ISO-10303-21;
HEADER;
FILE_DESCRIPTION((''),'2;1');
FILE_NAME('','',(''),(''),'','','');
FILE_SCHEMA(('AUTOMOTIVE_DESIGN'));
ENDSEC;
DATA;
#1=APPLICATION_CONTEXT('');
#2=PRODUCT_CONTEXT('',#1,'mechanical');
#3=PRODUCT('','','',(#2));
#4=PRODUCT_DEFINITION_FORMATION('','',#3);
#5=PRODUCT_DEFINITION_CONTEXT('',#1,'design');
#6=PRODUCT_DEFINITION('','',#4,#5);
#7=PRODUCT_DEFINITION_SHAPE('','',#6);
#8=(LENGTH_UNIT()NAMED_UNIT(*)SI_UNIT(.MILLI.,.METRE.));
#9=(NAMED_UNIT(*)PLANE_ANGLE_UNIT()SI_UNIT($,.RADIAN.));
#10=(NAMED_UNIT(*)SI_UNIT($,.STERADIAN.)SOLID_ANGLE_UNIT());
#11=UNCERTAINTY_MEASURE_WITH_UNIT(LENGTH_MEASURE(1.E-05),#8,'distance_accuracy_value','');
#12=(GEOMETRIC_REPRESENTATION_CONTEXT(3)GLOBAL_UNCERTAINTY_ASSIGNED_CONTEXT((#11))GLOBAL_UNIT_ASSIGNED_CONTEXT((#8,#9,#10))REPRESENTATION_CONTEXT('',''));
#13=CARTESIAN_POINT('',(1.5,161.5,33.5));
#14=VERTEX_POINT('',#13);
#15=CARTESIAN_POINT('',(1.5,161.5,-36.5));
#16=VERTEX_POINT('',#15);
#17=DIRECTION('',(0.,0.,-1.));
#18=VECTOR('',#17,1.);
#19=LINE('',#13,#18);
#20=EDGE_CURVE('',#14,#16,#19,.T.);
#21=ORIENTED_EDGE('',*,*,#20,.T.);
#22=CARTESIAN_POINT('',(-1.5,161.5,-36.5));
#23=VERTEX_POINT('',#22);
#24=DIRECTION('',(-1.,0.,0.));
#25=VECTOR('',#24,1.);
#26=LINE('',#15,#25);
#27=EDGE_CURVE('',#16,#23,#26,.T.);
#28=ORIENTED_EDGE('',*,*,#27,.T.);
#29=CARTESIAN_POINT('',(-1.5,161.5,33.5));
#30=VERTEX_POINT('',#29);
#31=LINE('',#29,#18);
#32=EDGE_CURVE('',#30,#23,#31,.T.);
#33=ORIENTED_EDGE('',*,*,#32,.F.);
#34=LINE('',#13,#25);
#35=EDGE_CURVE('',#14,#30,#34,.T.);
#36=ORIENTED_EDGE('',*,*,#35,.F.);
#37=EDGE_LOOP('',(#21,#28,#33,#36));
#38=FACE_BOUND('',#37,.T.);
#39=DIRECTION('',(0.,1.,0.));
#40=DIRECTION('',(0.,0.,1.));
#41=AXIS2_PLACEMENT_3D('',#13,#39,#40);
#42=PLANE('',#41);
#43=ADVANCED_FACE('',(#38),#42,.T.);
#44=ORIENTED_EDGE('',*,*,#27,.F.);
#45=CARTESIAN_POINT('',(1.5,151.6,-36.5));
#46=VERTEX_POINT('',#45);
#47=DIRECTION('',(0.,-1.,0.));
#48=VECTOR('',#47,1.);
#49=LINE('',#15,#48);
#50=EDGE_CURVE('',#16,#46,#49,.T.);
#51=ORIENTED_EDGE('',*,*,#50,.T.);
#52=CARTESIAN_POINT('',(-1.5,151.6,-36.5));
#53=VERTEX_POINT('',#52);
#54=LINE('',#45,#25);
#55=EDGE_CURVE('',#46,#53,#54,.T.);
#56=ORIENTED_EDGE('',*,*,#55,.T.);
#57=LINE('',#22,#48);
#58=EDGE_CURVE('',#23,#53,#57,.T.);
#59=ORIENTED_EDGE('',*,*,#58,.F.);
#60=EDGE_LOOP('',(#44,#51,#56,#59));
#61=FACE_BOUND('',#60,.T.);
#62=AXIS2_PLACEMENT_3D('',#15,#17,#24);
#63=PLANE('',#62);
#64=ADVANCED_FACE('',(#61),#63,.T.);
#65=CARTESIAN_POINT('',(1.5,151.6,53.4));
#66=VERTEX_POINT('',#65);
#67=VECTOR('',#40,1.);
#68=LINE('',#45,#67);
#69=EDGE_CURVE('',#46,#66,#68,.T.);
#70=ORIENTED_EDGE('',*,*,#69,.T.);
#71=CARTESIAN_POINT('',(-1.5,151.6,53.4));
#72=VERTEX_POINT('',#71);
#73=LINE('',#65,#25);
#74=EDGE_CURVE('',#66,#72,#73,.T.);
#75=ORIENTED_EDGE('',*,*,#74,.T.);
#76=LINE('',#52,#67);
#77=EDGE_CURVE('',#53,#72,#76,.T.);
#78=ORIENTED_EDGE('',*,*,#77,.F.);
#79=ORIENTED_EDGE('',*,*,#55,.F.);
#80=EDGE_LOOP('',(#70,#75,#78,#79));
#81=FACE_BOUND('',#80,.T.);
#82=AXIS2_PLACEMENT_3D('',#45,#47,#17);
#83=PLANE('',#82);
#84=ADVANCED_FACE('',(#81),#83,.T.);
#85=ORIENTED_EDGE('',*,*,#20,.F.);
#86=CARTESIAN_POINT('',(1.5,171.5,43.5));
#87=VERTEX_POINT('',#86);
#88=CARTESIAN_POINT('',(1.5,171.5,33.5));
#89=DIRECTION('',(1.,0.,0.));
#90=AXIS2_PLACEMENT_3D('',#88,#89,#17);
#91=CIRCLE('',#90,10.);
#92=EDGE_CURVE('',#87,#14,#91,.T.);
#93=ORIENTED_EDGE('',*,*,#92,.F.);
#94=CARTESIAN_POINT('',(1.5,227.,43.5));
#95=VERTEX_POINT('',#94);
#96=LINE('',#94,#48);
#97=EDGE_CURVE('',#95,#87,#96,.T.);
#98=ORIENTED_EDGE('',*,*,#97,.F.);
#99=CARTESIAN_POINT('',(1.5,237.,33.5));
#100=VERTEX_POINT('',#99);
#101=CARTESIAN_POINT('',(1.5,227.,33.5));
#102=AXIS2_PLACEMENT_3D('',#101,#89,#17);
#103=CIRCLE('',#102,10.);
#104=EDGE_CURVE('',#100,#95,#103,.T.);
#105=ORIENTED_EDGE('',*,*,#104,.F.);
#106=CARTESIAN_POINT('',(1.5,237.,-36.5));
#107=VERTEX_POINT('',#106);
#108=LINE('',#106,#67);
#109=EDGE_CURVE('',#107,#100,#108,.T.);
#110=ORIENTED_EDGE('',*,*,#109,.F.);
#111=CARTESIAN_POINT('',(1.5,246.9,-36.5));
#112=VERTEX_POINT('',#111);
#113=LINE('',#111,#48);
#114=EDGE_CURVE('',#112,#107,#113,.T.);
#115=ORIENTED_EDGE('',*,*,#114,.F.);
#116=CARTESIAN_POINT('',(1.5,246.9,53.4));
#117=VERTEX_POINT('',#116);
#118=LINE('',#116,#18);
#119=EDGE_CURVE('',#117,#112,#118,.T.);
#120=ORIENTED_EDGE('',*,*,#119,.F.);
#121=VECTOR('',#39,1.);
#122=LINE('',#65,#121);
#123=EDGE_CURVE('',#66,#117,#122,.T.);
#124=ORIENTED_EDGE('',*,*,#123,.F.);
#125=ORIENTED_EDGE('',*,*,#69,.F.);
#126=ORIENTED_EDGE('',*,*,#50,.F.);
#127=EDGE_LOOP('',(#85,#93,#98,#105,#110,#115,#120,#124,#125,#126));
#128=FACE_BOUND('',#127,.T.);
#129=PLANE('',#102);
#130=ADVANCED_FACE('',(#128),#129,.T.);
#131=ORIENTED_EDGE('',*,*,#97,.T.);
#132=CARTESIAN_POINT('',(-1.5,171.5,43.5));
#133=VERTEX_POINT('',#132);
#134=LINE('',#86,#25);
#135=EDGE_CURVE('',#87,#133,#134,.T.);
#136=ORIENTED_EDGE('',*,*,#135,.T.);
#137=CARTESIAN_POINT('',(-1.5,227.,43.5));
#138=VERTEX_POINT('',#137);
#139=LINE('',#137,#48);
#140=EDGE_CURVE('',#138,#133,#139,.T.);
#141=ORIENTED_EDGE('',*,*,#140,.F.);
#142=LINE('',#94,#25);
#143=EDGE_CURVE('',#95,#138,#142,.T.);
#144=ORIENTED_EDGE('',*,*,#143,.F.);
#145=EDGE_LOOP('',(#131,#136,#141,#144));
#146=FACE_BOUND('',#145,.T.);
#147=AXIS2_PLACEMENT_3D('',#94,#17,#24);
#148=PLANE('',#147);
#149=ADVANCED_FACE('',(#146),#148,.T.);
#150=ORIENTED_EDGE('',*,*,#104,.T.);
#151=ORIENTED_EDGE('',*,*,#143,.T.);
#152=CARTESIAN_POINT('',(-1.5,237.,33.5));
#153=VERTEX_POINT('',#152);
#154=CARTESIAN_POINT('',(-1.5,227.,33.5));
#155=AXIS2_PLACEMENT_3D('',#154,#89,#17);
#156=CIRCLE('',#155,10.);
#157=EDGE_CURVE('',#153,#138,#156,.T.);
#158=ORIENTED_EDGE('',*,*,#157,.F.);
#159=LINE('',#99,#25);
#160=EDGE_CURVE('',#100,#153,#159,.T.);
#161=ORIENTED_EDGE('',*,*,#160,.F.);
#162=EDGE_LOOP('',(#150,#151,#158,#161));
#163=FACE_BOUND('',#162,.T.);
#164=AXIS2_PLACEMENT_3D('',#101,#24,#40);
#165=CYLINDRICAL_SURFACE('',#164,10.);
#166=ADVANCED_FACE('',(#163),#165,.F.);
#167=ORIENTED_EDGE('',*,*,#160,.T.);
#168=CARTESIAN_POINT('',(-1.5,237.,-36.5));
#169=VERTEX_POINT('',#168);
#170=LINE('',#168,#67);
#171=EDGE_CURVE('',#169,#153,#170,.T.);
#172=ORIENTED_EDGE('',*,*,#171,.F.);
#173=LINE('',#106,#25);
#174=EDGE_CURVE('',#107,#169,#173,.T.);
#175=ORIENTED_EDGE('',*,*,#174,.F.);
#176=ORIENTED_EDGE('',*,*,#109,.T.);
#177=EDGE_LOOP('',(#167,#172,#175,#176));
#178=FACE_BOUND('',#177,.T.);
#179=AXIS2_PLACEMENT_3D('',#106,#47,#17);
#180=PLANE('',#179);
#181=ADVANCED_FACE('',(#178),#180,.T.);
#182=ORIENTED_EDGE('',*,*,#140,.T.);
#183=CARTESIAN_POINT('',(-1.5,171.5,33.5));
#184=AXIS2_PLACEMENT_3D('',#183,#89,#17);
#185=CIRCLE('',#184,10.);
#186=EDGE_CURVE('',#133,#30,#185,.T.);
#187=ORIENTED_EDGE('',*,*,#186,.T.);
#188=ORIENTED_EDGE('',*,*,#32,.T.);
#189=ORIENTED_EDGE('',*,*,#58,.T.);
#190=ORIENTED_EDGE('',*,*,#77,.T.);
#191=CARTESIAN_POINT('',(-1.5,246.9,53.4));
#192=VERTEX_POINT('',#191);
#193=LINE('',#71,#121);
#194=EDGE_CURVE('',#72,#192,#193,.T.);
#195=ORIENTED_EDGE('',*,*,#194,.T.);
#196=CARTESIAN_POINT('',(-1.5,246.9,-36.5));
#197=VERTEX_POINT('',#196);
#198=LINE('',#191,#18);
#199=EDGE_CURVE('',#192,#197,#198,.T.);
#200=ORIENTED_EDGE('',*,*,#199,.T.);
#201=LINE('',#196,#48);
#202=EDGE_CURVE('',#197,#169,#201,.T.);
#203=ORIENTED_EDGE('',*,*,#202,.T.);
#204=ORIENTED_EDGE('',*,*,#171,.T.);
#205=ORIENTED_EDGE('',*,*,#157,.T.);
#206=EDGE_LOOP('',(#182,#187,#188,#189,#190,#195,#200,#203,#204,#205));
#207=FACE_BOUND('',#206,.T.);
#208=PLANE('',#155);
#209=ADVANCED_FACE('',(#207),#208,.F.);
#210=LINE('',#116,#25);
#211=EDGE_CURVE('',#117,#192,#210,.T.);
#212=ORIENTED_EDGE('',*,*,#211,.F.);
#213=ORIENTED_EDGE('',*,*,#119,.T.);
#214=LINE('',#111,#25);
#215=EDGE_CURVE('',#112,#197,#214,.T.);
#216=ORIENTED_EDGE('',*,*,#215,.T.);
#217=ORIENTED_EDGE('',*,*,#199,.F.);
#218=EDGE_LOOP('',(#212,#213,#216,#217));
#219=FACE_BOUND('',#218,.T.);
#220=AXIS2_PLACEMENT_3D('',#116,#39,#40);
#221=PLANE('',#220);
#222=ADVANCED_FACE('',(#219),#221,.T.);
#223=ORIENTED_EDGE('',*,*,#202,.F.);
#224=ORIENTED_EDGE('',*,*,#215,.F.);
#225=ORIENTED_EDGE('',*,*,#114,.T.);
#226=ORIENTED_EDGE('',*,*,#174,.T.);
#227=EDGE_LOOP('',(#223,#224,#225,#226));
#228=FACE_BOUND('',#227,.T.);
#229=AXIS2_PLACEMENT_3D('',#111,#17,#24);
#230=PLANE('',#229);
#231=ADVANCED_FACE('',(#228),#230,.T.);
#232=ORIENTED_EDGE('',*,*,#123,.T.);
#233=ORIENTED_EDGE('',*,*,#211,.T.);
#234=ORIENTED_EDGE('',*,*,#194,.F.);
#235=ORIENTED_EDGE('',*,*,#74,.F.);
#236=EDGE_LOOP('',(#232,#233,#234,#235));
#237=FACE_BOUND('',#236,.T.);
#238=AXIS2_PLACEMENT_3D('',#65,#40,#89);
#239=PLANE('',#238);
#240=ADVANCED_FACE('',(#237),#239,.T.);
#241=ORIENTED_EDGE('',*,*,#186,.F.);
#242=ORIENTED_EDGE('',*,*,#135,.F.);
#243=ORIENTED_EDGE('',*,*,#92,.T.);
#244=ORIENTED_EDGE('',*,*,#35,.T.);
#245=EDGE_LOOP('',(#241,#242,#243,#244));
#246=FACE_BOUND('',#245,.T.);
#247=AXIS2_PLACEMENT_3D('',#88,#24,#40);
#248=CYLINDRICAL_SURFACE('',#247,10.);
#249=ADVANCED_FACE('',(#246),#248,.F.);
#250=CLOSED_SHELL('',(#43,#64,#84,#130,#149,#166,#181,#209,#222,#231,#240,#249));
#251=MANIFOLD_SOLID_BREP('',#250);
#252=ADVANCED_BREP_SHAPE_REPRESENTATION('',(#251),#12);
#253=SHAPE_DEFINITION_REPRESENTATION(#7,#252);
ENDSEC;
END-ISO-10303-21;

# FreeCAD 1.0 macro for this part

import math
import FreeCAD as App
import Part
import Sketcher

doc = App.newDocument("Part")
params = doc.addObject("Spreadsheet::Sheet", "Params")
for row, (alias, value) in enumerate([
    ("sketch1_radius", "10 mm"),
    ("sketch1_height", "70 mm"),
    ("sketch1_width", "55.5 mm"),
    ("sketch1_width2", "9.9 mm"),
    ("sketch1_height2", "89.9 mm"),
    ("pad1_length", "3 mm"),
], start=1):
    params.set(f"A{row}", alias)
    params.set(f"B{row}", "=" + value)
    params.setAlias(f"B{row}", alias)

body = doc.addObject("PartDesign::Body", "Body")

# Sketch on YZ plane
sketch1 = doc.addObject("Sketcher::SketchObject", "Sketch")
body.addObject(sketch1)
sketch1.AttachmentSupport = (doc.YZ_Plane, [""])
sketch1.MapMode = "FlatFace"
sketch1.AttachmentOffset = App.Placement(App.Vector(0, 0, -1.5), App.Rotation())
sketch1.addGeometry(Part.LineSegment(App.Vector(237, -36, 0), App.Vector(237, 34, 0)), False)
sketch1.addGeometry(Part.ArcOfCircle(Part.Circle(App.Vector(227, 34, 0), App.Vector(0, 0, 1), 10), math.radians(0), math.radians(90)), False)
sketch1.addGeometry(Part.LineSegment(App.Vector(227, 44, 0), App.Vector(172, 44, 0)), False)
sketch1.addGeometry(Part.ArcOfCircle(Part.Circle(App.Vector(172, 34, 0), App.Vector(0, 0, 1), 10), math.radians(90), math.radians(180)), False)
sketch1.addGeometry(Part.LineSegment(App.Vector(162, 34, 0), App.Vector(162, -36, 0)), False)
sketch1.addGeometry(Part.LineSegment(App.Vector(162, -36, 0), App.Vector(152, -36, 0)), False)
sketch1.addGeometry(Part.LineSegment(App.Vector(152, -36, 0), App.Vector(152, 53, 0)), False)
sketch1.addGeometry(Part.LineSegment(App.Vector(152, 53, 0), App.Vector(247, 53, 0)), False)
sketch1.addGeometry(Part.LineSegment(App.Vector(247, 53, 0), App.Vector(247, -36, 0)), False)
sketch1.addGeometry(Part.LineSegment(App.Vector(247, -36, 0), App.Vector(237, -36, 0)), False)
sketch1.addConstraint(Sketcher.Constraint("Tangent", 0, 2, 1, 1))
sketch1.addConstraint(Sketcher.Constraint("Tangent", 1, 2, 2, 1))
sketch1.addConstraint(Sketcher.Constraint("Tangent", 2, 2, 3, 1))
sketch1.addConstraint(Sketcher.Constraint("Tangent", 3, 2, 4, 1))
sketch1.addConstraint(Sketcher.Constraint("Coincident", 4, 2, 5, 1))
sketch1.addConstraint(Sketcher.Constraint("Coincident", 5, 2, 6, 1))
sketch1.addConstraint(Sketcher.Constraint("Coincident", 6, 2, 7, 1))
sketch1.addConstraint(Sketcher.Constraint("Coincident", 7, 2, 8, 1))
sketch1.addConstraint(Sketcher.Constraint("Coincident", 8, 2, 9, 1))
sketch1.addConstraint(Sketcher.Constraint("Coincident", 9, 2, 0, 1))
sketch1.addConstraint(Sketcher.Constraint("Vertical", 0))
sketch1.addConstraint(Sketcher.Constraint("Horizontal", 2))
sketch1.addConstraint(Sketcher.Constraint("Vertical", 4))
sketch1.addConstraint(Sketcher.Constraint("Horizontal", 5))
sketch1.addConstraint(Sketcher.Constraint("Vertical", 6))
sketch1.addConstraint(Sketcher.Constraint("Horizontal", 7))
sketch1.addConstraint(Sketcher.Constraint("Vertical", 8))
sketch1.addConstraint(Sketcher.Constraint("Horizontal", 9))
sketch1.addConstraint(Sketcher.Constraint("Equal", 1, 3))
sketch1.addConstraint(Sketcher.Constraint("Horizontal", 5, 2, 8, 2))
sketch1.addConstraint(Sketcher.Constraint("Equal", 5, 9))
sketch1.addConstraint(Sketcher.Constraint("Radius", 1, 10.0))
sketch1.addConstraint(Sketcher.Constraint("DistanceY", 0, 1, 0, 2, 70.0))
sketch1.addConstraint(Sketcher.Constraint("DistanceX", 2, 2, 2, 1, 55.5))
sketch1.addConstraint(Sketcher.Constraint("DistanceX", 5, 2, 5, 1, 9.9))
sketch1.addConstraint(Sketcher.Constraint("DistanceY", 6, 1, 6, 2, 89.9))
sketch1.addConstraint(Sketcher.Constraint("DistanceX", -1, 1, 1, 3, 227.0))
sketch1.addConstraint(Sketcher.Constraint("DistanceY", -1, 1, 1, 3, 33.5))
sketch1.setExpression("Constraints[21]", "Params.sketch1_radius")
sketch1.setExpression("Constraints[22]", "Params.sketch1_height")
sketch1.setExpression("Constraints[23]", "Params.sketch1_width")
sketch1.setExpression("Constraints[24]", "Params.sketch1_width2")
sketch1.setExpression("Constraints[25]", "Params.sketch1_height2")
pad1 = doc.addObject("PartDesign::Pad", "Pad")
body.addObject(pad1)
pad1.Profile = sketch1
pad1.setExpression("Length", "Params.pad1_length")

doc.recompute()
